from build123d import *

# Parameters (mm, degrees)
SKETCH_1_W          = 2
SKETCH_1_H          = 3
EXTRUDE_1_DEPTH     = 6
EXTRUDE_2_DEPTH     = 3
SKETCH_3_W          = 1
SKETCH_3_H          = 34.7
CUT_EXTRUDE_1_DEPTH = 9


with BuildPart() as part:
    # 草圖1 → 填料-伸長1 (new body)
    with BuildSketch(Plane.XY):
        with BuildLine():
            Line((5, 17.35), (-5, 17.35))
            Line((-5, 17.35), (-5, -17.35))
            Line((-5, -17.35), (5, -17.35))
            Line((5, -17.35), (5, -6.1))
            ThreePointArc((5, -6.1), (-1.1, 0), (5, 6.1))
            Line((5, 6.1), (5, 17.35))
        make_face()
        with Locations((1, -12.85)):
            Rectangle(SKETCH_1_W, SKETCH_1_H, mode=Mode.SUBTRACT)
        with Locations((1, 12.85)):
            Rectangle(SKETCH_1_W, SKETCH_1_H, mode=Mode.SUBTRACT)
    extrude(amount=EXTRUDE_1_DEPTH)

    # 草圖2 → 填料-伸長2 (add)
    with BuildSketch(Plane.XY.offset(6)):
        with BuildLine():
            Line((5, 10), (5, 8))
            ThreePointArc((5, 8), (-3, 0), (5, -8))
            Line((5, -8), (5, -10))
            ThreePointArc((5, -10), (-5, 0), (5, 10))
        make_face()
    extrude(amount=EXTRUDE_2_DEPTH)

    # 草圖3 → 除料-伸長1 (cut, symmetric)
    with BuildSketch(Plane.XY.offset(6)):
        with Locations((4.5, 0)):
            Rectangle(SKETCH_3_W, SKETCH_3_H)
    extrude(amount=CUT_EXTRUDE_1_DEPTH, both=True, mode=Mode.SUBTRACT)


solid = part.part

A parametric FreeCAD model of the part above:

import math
import FreeCAD as App
import Part
import Sketcher
from FreeCAD import Vector
Q = App.Units.Quantity

doc = App.newDocument("Part")
params = doc.addObject("Spreadsheet::Sheet", "Params")
for row, (alias, value) in enumerate([
    ("sketch1_radius", "6.1 mm"),
    ("sketch1_width", "10 mm"),
    ("sketch1_width2", "2 mm"),
    ("sketch1_height", "3 mm"),
    ("sketch1_height2", "34.7 mm"),
    ("pad1_length", "6 mm"),
    ("sketch2_radius", "10 mm"),
    ("sketch2_radius2", "8 mm"),
    ("pad2_length", "3 mm"),
    ("sketch3_width", "1 mm"),
    ("sketch3_height", "34.7 mm"),
    ("pocket1_length", "18 mm"),
], start=1):
    params.set(f"A{row}", alias)
    params.set(f"B{row}", "=" + value)
    params.setAlias(f"B{row}", alias)

body = doc.addObject("PartDesign::Body", "Body")

sketch1 = body.newObject("Sketcher::SketchObject", "Sketch")
sketch1.AttachmentSupport = (doc.getObject("XY_Plane"), [""])
sketch1.MapMode = "FlatFace"
sketch1.addGeometry([
    Part.LineSegment(Vector(5, 17.4, 0), Vector(-5, 17.4, 0)),
    Part.LineSegment(Vector(-5, 17.4, 0), Vector(-5, -17.4, 0)),
    Part.LineSegment(Vector(-5, -17.4, 0), Vector(5, -17.4, 0)),
    Part.LineSegment(Vector(5, -17.4, 0), Vector(5, -6.1, 0)),
    Part.ArcOfCircle(Part.Circle(Vector(5, 0, 0), Vector(0, 0, 1), 6.1), math.radians(90), math.radians(270)),
    Part.LineSegment(Vector(5, 6.1, 0), Vector(5, 17.4, 0)),
    Part.LineSegment(Vector(2, -14.3, 0), Vector(0, -14.3, 0)),
    Part.LineSegment(Vector(0, -14.3, 0), Vector(0, -11.3, 0)),
    Part.LineSegment(Vector(0, -11.3, 0), Vector(2, -11.3, 0)),
    Part.LineSegment(Vector(2, -11.3, 0), Vector(2, -14.3, 0)),
    Part.LineSegment(Vector(2, 11.3, 0), Vector(0, 11.3, 0)),
    Part.LineSegment(Vector(0, 11.3, 0), Vector(0, 14.3, 0)),
    Part.LineSegment(Vector(0, 14.3, 0), Vector(2, 14.3, 0)),
    Part.LineSegment(Vector(2, 14.3, 0), Vector(2, 11.3, 0)),
], False)
sketch1.addConstraint([
    Sketcher.Constraint("Coincident", 0, 2, 1, 1),
    Sketcher.Constraint("Coincident", 1, 2, 2, 1),
    Sketcher.Constraint("Coincident", 2, 2, 3, 1),
    Sketcher.Constraint("Coincident", 3, 2, 4, 2),
    Sketcher.Constraint("Coincident", 4, 1, 5, 1),
    Sketcher.Constraint("Coincident", 5, 2, 0, 1),
    Sketcher.Constraint("Coincident", 6, 2, 7, 1),
    Sketcher.Constraint("Coincident", 7, 2, 8, 1),
    Sketcher.Constraint("Coincident", 8, 2, 9, 1),
    Sketcher.Constraint("Coincident", 9, 2, 6, 1),
    Sketcher.Constraint("Coincident", 10, 2, 11, 1),
    Sketcher.Constraint("Coincident", 11, 2, 12, 1),
    Sketcher.Constraint("Coincident", 12, 2, 13, 1),
    Sketcher.Constraint("Coincident", 13, 2, 10, 1),
    Sketcher.Constraint("Horizontal", 0),
    Sketcher.Constraint("Vertical", 1),
    Sketcher.Constraint("Horizontal", 2),
    Sketcher.Constraint("Vertical", 3),
    Sketcher.Constraint("Vertical", 5),
    Sketcher.Constraint("Horizontal", 6),
    Sketcher.Constraint("Vertical", 7),
    Sketcher.Constraint("Horizontal", 8),
    Sketcher.Constraint("Vertical", 9),
    Sketcher.Constraint("Horizontal", 10),
    Sketcher.Constraint("Vertical", 11),
    Sketcher.Constraint("Horizontal", 12),
    Sketcher.Constraint("Vertical", 13),
    Sketcher.Constraint("Symmetric", 0, 2, 2, 2, -1, 1),
    Sketcher.Constraint("Symmetric", 7, 2, 10, 2, -1, 1),
    Sketcher.Constraint("Symmetric", 3, 2, 4, 1, -1),
    Sketcher.Constraint("Symmetric", 6, 2, 11, 2, -1),
    Sketcher.Constraint("Vertical", 4, 3, 2, 2),
    Sketcher.Constraint("Vertical", 9, 2, 12, 2),
    Sketcher.Constraint("Radius", 4, Q("6.1 mm")),
    Sketcher.Constraint("DistanceX", 0, 2, 0, 1, Q("10 mm")),
    Sketcher.Constraint("DistanceX", 6, 2, 6, 1, Q("2 mm")),
    Sketcher.Constraint("DistanceY", 7, 1, 7, 2, Q("3 mm")),
    Sketcher.Constraint("DistanceY", 1, 2, 1, 1, Q("34.7 mm")),
    Sketcher.Constraint("DistanceY", 1, 2, 6, 2, Q("3 mm")),
])
sketch1.setExpression("Constraints[33]", "Params.sketch1_radius")
sketch1.setExpression("Constraints[34]", "Params.sketch1_width")
sketch1.setExpression("Constraints[35]", "Params.sketch1_width2")
sketch1.setExpression("Constraints[36]", "Params.sketch1_height")
sketch1.setExpression("Constraints[37]", "Params.sketch1_height2")
pad1 = body.newObject("PartDesign::Pad", "Pad")
pad1.Profile = sketch1
pad1.setExpression("Length", "Params.pad1_length")

sketch2 = body.newObject("Sketcher::SketchObject", "Sketch001")
sketch2.AttachmentSupport = (doc.getObject("XY_Plane"), [""])
sketch2.MapMode = "FlatFace"
sketch2.AttachmentOffset = App.Placement(Vector(0, 0, 6), App.Rotation())
sketch2.addGeometry([
    Part.LineSegment(Vector(5, 8, 0), Vector(5, 10, 0)),
    Part.ArcOfCircle(Part.Circle(Vector(5, 0, 0), Vector(0, 0, 1), 10), math.radians(90), math.radians(270)),
    Part.LineSegment(Vector(5, -10, 0), Vector(5, -8, 0)),
    Part.ArcOfCircle(Part.Circle(Vector(5, 0, 0), Vector(0, 0, 1), 8), math.radians(90), math.radians(270)),
], False)
sketch2.addConstraint([
    Sketcher.Constraint("Coincident", 0, 2, 1, 1),
    Sketcher.Constraint("Coincident", 1, 2, 2, 1),
    Sketcher.Constraint("Coincident", 2, 2, 3, 2),
    Sketcher.Constraint("Coincident", 3, 1, 0, 1),
    Sketcher.Constraint("Vertical", 0),
    Sketcher.Constraint("Vertical", 2),
    Sketcher.Constraint("Coincident", 3, 3, 1, 3),
    Sketcher.Constraint("Symmetric", 0, 2, 1, 2, -1),
    Sketcher.Constraint("Vertical", 3, 3, 0, 2),
    Sketcher.Constraint("Radius", 1, Q("10 mm")),
    Sketcher.Constraint("Radius", 3, Q("8 mm")),
    Sketcher.Constraint("DistanceX", -1, 1, 1, 3, Q("5 mm")),
])
sketch2.setExpression("Constraints[9]", "Params.sketch2_radius")
sketch2.setExpression("Constraints[10]", "Params.sketch2_radius2")
pad2 = body.newObject("PartDesign::Pad", "Pad001")
pad2.Profile = sketch2
pad2.setExpression("Length", "Params.pad2_length")

sketch3 = body.newObject("Sketcher::SketchObject", "Sketch002")
sketch3.AttachmentSupport = (doc.getObject("XY_Plane"), [""])
sketch3.MapMode = "FlatFace"
sketch3.AttachmentOffset = App.Placement(Vector(0, 0, 6), App.Rotation())
sketch3.addGeometry([
    Part.LineSegment(Vector(4, 17.4, 0), Vector(4, -17.4, 0)),
    Part.LineSegment(Vector(4, -17.4, 0), Vector(5, -17.4, 0)),
    Part.LineSegment(Vector(5, -17.4, 0), Vector(5, 17.4, 0)),
    Part.LineSegment(Vector(5, 17.4, 0), Vector(4, 17.4, 0)),
], False)
sketch3.addConstraint([
    Sketcher.Constraint("Coincident", 0, 2, 1, 1),
    Sketcher.Constraint("Coincident", 1, 2, 2, 1),
    Sketcher.Constraint("Coincident", 2, 2, 3, 1),
    Sketcher.Constraint("Coincident", 3, 2, 0, 1),
    Sketcher.Constraint("Vertical", 0),
    Sketcher.Constraint("Horizontal", 1),
    Sketcher.Constraint("Vertical", 2),
    Sketcher.Constraint("Horizontal", 3),
    Sketcher.Constraint("DistanceX", 1, 1, 1, 2, Q("1 mm")),
    Sketcher.Constraint("DistanceY", 0, 2, 0, 1, Q("34.7 mm")),
    Sketcher.Constraint("DistanceX", -1, 1, 0, 2, Q("4 mm")),
    Sketcher.Constraint("DistanceY", 0, 2, -1, 1, Q("17.35 mm")),
])
sketch3.setExpression("Constraints[8]", "Params.sketch3_width")
sketch3.setExpression("Constraints[9]", "Params.sketch3_height")
pocket1 = body.newObject("PartDesign::Pocket", "Pocket")
pocket1.Profile = sketch3
pocket1.setExpression("Length", "Params.pocket1_length")
pocket1.Midplane = True

doc.recompute()
